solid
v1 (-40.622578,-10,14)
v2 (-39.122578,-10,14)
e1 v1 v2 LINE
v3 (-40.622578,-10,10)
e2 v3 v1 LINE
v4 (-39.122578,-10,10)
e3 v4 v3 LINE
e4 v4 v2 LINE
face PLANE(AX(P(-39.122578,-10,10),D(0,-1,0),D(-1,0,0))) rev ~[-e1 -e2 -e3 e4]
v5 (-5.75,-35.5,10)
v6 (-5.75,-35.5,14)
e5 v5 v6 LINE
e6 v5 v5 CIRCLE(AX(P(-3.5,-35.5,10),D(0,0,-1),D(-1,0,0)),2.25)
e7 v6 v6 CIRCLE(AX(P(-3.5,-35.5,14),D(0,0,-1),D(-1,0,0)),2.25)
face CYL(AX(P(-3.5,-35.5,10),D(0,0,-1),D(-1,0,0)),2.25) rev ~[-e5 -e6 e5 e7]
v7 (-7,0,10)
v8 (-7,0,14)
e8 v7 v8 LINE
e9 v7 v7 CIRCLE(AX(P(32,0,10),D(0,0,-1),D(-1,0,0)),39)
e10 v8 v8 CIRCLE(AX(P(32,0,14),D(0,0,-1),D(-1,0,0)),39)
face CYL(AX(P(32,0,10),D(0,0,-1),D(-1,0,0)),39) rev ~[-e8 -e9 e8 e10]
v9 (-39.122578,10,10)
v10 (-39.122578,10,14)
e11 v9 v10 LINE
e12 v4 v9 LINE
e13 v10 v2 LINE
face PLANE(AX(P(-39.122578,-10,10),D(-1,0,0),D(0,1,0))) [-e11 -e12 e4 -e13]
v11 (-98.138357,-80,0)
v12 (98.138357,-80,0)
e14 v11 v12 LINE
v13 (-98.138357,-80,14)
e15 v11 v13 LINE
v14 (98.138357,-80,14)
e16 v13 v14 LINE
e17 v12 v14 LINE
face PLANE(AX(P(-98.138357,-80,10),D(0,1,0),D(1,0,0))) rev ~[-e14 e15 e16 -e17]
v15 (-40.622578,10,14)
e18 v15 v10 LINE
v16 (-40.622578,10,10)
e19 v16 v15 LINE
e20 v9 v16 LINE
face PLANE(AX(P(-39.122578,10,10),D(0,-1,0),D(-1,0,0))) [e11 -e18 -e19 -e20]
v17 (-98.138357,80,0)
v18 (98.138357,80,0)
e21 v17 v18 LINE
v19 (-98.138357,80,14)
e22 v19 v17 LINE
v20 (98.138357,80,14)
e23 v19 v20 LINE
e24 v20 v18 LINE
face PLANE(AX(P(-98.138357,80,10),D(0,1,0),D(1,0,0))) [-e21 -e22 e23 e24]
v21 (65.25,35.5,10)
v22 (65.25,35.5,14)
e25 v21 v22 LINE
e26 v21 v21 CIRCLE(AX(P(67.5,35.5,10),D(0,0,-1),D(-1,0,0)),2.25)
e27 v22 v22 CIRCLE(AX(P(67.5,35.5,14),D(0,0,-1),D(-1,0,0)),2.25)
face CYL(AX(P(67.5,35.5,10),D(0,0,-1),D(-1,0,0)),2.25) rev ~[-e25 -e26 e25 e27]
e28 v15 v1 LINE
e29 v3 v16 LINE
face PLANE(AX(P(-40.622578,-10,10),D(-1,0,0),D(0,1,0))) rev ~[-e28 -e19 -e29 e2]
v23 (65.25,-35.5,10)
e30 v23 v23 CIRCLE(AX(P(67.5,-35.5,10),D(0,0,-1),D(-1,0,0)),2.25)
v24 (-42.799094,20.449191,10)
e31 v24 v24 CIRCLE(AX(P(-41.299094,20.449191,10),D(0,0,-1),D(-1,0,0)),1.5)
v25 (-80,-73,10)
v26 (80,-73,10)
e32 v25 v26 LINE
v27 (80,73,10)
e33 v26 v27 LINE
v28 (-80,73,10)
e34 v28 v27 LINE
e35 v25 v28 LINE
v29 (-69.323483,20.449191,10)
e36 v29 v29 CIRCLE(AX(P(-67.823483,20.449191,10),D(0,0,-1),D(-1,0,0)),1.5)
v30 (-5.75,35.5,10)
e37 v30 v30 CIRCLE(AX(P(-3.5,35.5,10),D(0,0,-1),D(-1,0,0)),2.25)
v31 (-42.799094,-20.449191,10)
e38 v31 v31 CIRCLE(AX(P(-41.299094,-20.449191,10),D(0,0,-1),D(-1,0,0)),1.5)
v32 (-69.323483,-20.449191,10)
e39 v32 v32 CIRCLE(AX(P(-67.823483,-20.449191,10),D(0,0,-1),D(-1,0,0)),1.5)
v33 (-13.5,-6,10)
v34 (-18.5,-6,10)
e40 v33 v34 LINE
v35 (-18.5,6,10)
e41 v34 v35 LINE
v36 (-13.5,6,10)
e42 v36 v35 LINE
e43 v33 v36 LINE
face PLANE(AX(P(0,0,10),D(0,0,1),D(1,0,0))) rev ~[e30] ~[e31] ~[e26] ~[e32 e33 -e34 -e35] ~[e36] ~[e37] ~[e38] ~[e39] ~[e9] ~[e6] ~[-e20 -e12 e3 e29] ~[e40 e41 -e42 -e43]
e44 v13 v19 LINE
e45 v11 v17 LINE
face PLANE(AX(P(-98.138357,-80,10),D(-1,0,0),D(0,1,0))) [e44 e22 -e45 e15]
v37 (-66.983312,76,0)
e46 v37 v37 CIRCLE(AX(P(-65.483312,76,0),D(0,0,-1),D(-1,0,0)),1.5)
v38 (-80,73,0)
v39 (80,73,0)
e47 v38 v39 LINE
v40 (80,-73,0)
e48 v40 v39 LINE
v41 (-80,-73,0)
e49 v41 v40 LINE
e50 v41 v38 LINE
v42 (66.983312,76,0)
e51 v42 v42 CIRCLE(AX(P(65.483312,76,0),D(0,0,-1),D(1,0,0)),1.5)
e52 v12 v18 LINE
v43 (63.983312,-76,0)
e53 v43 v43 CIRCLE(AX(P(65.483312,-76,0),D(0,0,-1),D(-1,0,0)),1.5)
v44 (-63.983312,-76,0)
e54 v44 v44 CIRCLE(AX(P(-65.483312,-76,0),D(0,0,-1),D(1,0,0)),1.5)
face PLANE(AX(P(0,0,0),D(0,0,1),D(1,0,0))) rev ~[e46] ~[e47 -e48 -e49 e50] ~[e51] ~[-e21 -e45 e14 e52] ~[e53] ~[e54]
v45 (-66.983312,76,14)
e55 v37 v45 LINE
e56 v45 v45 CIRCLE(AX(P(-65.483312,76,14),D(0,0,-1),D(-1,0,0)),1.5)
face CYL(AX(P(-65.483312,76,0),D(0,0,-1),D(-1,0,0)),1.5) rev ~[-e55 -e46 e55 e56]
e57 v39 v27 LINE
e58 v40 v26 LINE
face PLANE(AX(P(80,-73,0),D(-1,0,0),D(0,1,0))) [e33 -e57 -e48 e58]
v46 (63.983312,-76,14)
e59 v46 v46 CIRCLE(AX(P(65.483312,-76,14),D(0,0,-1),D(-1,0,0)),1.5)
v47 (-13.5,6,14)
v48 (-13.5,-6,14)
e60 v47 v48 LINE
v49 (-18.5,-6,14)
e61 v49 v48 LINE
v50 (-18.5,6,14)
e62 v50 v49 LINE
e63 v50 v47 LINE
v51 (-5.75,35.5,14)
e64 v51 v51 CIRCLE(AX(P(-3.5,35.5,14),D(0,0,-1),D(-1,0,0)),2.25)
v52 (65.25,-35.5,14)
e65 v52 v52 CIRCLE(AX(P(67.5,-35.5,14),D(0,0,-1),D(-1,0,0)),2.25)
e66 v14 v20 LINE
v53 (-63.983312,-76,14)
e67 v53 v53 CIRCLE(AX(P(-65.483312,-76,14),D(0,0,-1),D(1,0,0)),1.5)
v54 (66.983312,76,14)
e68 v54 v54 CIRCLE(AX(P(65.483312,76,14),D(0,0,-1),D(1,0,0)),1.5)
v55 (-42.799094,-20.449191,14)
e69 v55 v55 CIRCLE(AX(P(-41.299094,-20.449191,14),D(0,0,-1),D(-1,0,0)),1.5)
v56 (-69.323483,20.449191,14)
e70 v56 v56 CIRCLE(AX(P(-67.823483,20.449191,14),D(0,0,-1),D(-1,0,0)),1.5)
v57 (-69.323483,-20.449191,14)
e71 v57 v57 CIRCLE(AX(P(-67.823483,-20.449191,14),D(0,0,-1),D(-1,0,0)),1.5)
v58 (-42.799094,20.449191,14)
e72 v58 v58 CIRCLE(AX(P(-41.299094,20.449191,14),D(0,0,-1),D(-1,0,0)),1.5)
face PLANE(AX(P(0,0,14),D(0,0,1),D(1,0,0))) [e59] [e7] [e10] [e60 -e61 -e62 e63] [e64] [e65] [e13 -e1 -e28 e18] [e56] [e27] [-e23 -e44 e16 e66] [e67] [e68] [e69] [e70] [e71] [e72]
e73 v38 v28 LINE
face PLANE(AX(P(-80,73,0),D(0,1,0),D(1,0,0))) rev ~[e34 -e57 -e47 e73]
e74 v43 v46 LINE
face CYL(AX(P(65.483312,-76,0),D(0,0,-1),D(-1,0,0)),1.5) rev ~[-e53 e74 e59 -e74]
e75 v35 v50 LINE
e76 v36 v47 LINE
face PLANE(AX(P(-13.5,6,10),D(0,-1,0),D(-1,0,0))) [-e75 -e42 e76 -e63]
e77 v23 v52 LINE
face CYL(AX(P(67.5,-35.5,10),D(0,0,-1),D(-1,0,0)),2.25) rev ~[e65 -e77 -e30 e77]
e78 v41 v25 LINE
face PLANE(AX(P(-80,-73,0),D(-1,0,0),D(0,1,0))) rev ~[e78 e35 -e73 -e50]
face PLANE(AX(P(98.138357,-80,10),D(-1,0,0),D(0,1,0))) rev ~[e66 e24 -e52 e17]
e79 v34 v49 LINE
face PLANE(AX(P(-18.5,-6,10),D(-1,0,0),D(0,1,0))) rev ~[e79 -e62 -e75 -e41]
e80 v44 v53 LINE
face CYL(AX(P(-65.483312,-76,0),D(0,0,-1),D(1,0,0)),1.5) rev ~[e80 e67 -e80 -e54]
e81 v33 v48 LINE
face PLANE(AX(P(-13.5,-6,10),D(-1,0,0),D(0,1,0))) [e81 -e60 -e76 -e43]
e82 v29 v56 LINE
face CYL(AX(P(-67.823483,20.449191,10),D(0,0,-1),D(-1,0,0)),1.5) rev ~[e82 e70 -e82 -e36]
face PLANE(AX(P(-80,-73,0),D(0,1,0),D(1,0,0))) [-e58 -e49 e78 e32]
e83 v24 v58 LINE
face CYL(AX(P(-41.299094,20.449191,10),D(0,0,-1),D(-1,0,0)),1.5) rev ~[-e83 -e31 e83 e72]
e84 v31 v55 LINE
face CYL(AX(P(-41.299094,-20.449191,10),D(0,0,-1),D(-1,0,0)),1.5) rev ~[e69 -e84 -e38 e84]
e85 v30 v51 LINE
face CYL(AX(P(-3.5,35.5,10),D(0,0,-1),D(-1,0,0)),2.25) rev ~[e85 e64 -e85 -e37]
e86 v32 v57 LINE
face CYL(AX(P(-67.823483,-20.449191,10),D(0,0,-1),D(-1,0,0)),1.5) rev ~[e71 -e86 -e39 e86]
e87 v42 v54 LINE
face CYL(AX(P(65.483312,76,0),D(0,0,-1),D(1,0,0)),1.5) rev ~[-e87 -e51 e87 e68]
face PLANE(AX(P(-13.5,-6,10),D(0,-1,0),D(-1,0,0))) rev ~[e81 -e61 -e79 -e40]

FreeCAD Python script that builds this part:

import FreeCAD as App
import Part
import Sketcher
from FreeCAD import Vector
Q = App.Units.Quantity

doc = App.newDocument("Part")
body = doc.addObject("PartDesign::Body", "Body")

sketch1 = body.newObject("Sketcher::SketchObject", "Sketch")
sketch1.AttachmentSupport = (doc.getObject("XY_Plane"), [""])
sketch1.MapMode = "FlatFace"
sketch1.addGeometry([
    Part.LineSegment(Vector(-98.138357, 80, 0), Vector(-98.138357, -80, 0)),
    Part.LineSegment(Vector(-98.138357, -80, 0), Vector(98.138357, -80, 0)),
    Part.LineSegment(Vector(98.138357, -80, 0), Vector(98.138357, 80, 0)),
    Part.LineSegment(Vector(98.138357, 80, 0), Vector(-98.138357, 80, 0)),
    Part.LineSegment(Vector(80, -73, 0), Vector(-80, -73, 0)),
    Part.LineSegment(Vector(-80, -73, 0), Vector(-80, 73, 0)),
    Part.LineSegment(Vector(-80, 73, 0), Vector(80, 73, 0)),
    Part.LineSegment(Vector(80, 73, 0), Vector(80, -73, 0)),
], False)
sketch1.addConstraint([
    Sketcher.Constraint("Coincident", 0, 2, 1, 1),
    Sketcher.Constraint("Coincident", 1, 2, 2, 1),
    Sketcher.Constraint("Coincident", 2, 2, 3, 1),
    Sketcher.Constraint("Coincident", 3, 2, 0, 1),
    Sketcher.Constraint("Coincident", 4, 2, 5, 1),
    Sketcher.Constraint("Coincident", 5, 2, 6, 1),
    Sketcher.Constraint("Coincident", 6, 2, 7, 1),
    Sketcher.Constraint("Coincident", 7, 2, 4, 1),
    Sketcher.Constraint("Vertical", 0),
    Sketcher.Constraint("Horizontal", 1),
    Sketcher.Constraint("Vertical", 2),
    Sketcher.Constraint("Horizontal", 3),
    Sketcher.Constraint("Horizontal", 4),
    Sketcher.Constraint("Vertical", 5),
    Sketcher.Constraint("Horizontal", 6),
    Sketcher.Constraint("Vertical", 7),
    Sketcher.Constraint("Symmetric", 0, 2, 2, 2, -1, 1),
    Sketcher.Constraint("Symmetric", 4, 2, 6, 2, -1, 1),
    Sketcher.Constraint("Equal", 6, 0),
    Sketcher.Constraint("DistanceX", 4, 2, 4, 1, Q("160 mm")),
    Sketcher.Constraint("DistanceY", 5, 1, 5, 2, Q("146 mm")),
    Sketcher.Constraint("DistanceX", 1, 1, 1, 2, Q("196.276714 mm")),
])
pad1 = body.newObject("PartDesign::Pad", "Pad")
pad1.Profile = sketch1
pad1.Length = 10

sketch2 = body.newObject("Sketcher::SketchObject", "Sketch001")
sketch2.AttachmentSupport = (doc.getObject("XY_Plane"), [""])
sketch2.MapMode = "FlatFace"
sketch2.AttachmentOffset = App.Placement(Vector(0, 0, 10), App.Rotation())
sketch2.addGeometry([
    Part.LineSegment(Vector(-98.138357, 80, 0), Vector(-98.138357, -80, 0)),
    Part.LineSegment(Vector(-98.138357, -80, 0), Vector(98.138357, -80, 0)),
    Part.LineSegment(Vector(98.138357, -80, 0), Vector(98.138357, 80, 0)),
    Part.LineSegment(Vector(98.138357, 80, 0), Vector(-98.138357, 80, 0)),
], False)
sketch2.addConstraint([
    Sketcher.Constraint("Coincident", 0, 2, 1, 1),
    Sketcher.Constraint("Coincident", 1, 2, 2, 1),
    Sketcher.Constraint("Coincident", 2, 2, 3, 1),
    Sketcher.Constraint("Coincident", 3, 2, 0, 1),
    Sketcher.Constraint("Vertical", 0),
    Sketcher.Constraint("Horizontal", 1),
    Sketcher.Constraint("Vertical", 2),
    Sketcher.Constraint("Horizontal", 3),
    Sketcher.Constraint("Symmetric", 0, 2, 2, 2, -1, 1),
    Sketcher.Constraint("DistanceY", 0, 2, 0, 1, Q("160 mm")),
    Sketcher.Constraint("DistanceX", 1, 1, 1, 2, Q("196.276714 mm")),
])
pad2 = body.newObject("PartDesign::Pad", "Pad001")
pad2.Profile = sketch2
pad2.Length = 4

sketch3 = body.newObject("Sketcher::SketchObject", "Sketch002")
sketch3.AttachmentSupport = (doc.getObject("XY_Plane"), [""])
sketch3.MapMode = "FlatFace"
sketch3.addGeometry([
    Part.Circle(Vector(-65.483312, 76, 0), Vector(0, 0, 1), 1.5),
    Part.Circle(Vector(65.483312, 76, 0), Vector(0, 0, 1), 1.5),
    Part.Circle(Vector(65.483312, -76, 0), Vector(0, 0, 1), 1.5),
    Part.Circle(Vector(-65.483312, -76, 0), Vector(0, 0, 1), 1.5),
], False)
sketch3.addConstraint([
    Sketcher.Constraint("Equal", 0, 1),
    Sketcher.Constraint("Equal", 1, 2),
    Sketcher.Constraint("Equal", 2, 3),
    Sketcher.Constraint("Symmetric", 0, 3, 2, 3, -1, 1),
    Sketcher.Constraint("Symmetric", 1, 3, 3, 3, -1, 1),
    Sketcher.Constraint("Symmetric", 0, 3, 1, 3, -2),
    Sketcher.Constraint("Diameter", 0, Q("3 mm")),
    Sketcher.Constraint("DistanceY", -1, 1, 0, 3, Q("76 mm")),
    Sketcher.Constraint("DistanceX", 0, 3, -1, 1, Q("65.483312 mm")),
])
pocket1 = body.newObject("PartDesign::Pocket", "Pocket")
pocket1.Profile = sketch3
pocket1.Length = 93
pocket1.Reversed = True

sketch4 = body.newObject("Sketcher::SketchObject", "Sketch003")
sketch4.AttachmentSupport = (doc.getObject("XY_Plane"), [""])
sketch4.MapMode = "FlatFace"
sketch4.AttachmentOffset = App.Placement(Vector(0, 0, 10), App.Rotation())
sketch4.addGeometry([
    Part.Circle(Vector(32, 0, 0), Vector(0, 0, 1), 39),
    Part.Circle(Vector(-3.5, 35.5, 0), Vector(0, 0, 1), 2.25),
    Part.Circle(Vector(-3.5, -35.5, 0), Vector(0, 0, 1), 2.25),
    Part.Circle(Vector(67.5, 35.5, 0), Vector(0, 0, 1), 2.25),
    Part.Circle(Vector(67.5, -35.5, 0), Vector(0, 0, 1), 2.25),
    Part.Circle(Vector(-41.299094, 20.449191, 0), Vector(0, 0, 1), 1.5),
    Part.Circle(Vector(-41.299094, -20.449191, 0), Vector(0, 0, 1), 1.5),
    Part.Circle(Vector(-67.823483, -20.449191, 0), Vector(0, 0, 1), 1.5),
    Part.Circle(Vector(-67.823483, 20.449191, 0), Vector(0, 0, 1), 1.5),
    Part.LineSegment(Vector(-13.5, 6, 0), Vector(-13.5, -6, 0)),
    Part.LineSegment(Vector(-13.5, -6, 0), Vector(-18.5, -6, 0)),
    Part.LineSegment(Vector(-18.5, -6, 0), Vector(-18.5, 6, 0)),
    Part.LineSegment(Vector(-18.5, 6, 0), Vector(-13.5, 6, 0)),
    Part.LineSegment(Vector(-39.122578, 10, 0), Vector(-39.122578, -10, 0)),
    Part.LineSegment(Vector(-39.122578, -10, 0), Vector(-40.622578, -10, 0)),
    Part.LineSegment(Vector(-40.622578, -10, 0), Vector(-40.622578, 10, 0)),
    Part.LineSegment(Vector(-40.622578, 10, 0), Vector(-39.122578, 10, 0)),
], False)
sketch4.addConstraint([
    Sketcher.Constraint("Coincident", 9, 2, 10, 1),
    Sketcher.Constraint("Coincident", 10, 2, 11, 1),
    Sketcher.Constraint("Coincident", 11, 2, 12, 1),
    Sketcher.Constraint("Coincident", 12, 2, 9, 1),
    Sketcher.Constraint("Coincident", 13, 2, 14, 1),
    Sketcher.Constraint("Coincident", 14, 2, 15, 1),
    Sketcher.Constraint("Coincident", 15, 2, 16, 1),
    Sketcher.Constraint("Coincident", 16, 2, 13, 1),
    Sketcher.Constraint("Vertical", 9),
    Sketcher.Constraint("Horizontal", 10),
    Sketcher.Constraint("Vertical", 11),
    Sketcher.Constraint("Horizontal", 12),
    Sketcher.Constraint("Vertical", 13),
    Sketcher.Constraint("Horizontal", 14),
    Sketcher.Constraint("Vertical", 15),
    Sketcher.Constraint("Horizontal", 16),
    Sketcher.Constraint("Equal", 1, 2),
    Sketcher.Constraint("Equal", 2, 3),
    Sketcher.Constraint("Equal", 3, 4),
    Sketcher.Constraint("Equal", 5, 6),
    Sketcher.Constraint("Equal", 6, 7),
    Sketcher.Constraint("Equal", 7, 8),
    Sketcher.Constraint("Symmetric", 1, 3, 2, 3, -1),
    Sketcher.Constraint("Symmetric", 3, 3, 4, 3, -1),
    Sketcher.Constraint("Symmetric", 5, 3, 6, 3, -1),
    Sketcher.Constraint("Symmetric", 7, 3, 8, 3, -1),
    Sketcher.Constraint("PointOnObject", 0, 3, -1),
    Sketcher.Constraint("Horizontal", 1, 3, 3, 3),
    Sketcher.Constraint("Horizontal", 6, 3, 7, 3),
    Sketcher.Constraint("Diameter", 0, Q("78 mm")),
    Sketcher.Constraint("Diameter", 5, Q("3 mm")),
    Sketcher.Constraint("Diameter", 1, Q("4.5 mm")),
    Sketcher.Constraint("DistanceX", 10, 2, 10, 1, Q("5 mm")),
    Sketcher.Constraint("DistanceY", 9, 2, 9, 1, Q("12 mm")),
    Sketcher.Constraint("DistanceY", 13, 2, 13, 1, Q("20 mm")),
    Sketcher.Constraint("DistanceX", 14, 2, 14, 1, Q("1.5 mm")),
    Sketcher.Constraint("DistanceX", -1, 1, 0, 3, Q("32 mm")),
    Sketcher.Constraint("DistanceY", 9, 2, -1, 1, Q("6 mm")),
    Sketcher.Constraint("DistanceY", 13, 2, -1, 1, Q("10 mm")),
    Sketcher.Constraint("DistanceY", 2, 3, 1, 3, Q("71 mm")),
    Sketcher.Constraint("DistanceX", 1, 3, 3, 3, Q("71 mm")),
    Sketcher.Constraint("DistanceX", 9, 2, 2, 3, Q("10 mm")),
    Sketcher.Constraint("DistanceX", 1, 3, -1, 1, Q("3.5 mm")),
    Sketcher.Constraint("DistanceY", -1, 1, 5, 3, Q("20.449191 mm")),
    Sketcher.Constraint("DistanceX", 7, 3, 6, 3, Q("26.524389 mm")),
    Sketcher.Constraint("DistanceX", 5, 3, -1, 1, Q("41.299094 mm")),
    Sketcher.Constraint("DistanceX", 13, 2, -1, 1, Q("39.122578 mm")),
])
pocket2 = body.newObject("PartDesign::Pocket", "Pocket001")
pocket2.Profile = sketch4
pocket2.Length = 90
pocket2.Reversed = True

doc.recompute()
